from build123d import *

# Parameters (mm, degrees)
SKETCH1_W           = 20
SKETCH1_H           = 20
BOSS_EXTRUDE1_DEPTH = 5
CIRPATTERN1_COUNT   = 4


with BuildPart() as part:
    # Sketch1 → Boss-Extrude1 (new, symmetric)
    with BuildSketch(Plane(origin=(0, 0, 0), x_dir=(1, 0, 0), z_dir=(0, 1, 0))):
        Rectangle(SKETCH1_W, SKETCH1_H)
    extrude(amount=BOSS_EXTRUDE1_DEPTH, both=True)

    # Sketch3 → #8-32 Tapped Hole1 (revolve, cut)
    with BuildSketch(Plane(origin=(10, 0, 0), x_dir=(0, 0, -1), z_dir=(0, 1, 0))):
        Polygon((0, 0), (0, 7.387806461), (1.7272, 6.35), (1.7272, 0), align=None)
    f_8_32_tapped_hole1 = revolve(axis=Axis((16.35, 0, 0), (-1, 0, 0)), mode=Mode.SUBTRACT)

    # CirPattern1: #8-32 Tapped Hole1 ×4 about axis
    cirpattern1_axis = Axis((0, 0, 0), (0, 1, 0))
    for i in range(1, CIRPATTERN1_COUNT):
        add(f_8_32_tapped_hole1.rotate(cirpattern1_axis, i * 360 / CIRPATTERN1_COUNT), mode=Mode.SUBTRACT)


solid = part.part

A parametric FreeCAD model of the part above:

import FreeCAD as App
import Part
import Sketcher
from FreeCAD import Vector
Q = App.Units.Quantity

doc = App.newDocument("Part")
params = doc.addObject("Spreadsheet::Sheet", "Params")
for row, (alias, value) in enumerate([
    ("sketch1_width", "20 mm"),
    ("pad1_length", "10 mm"),
    ("sketch2_width", "6.35 mm"),
    ("groove_angle", "360 deg"),
], start=1):
    params.set(f"A{row}", alias)
    params.set(f"B{row}", "=" + value)
    params.setAlias(f"B{row}", alias)

body = doc.addObject("PartDesign::Body", "Body")

# Sketch on XZ plane
sketch1 = body.newObject("Sketcher::SketchObject", "Sketch")
sketch1.AttachmentSupport = (doc.getObject("XZ_Plane"), [""])
sketch1.MapMode = "FlatFace"
sketch1.addGeometry([
    Part.LineSegment(Vector(-10, -10, 0), Vector(-10, 10, 0)),
    Part.LineSegment(Vector(-10, 10, 0), Vector(10, 10, 0)),
    Part.LineSegment(Vector(10, 10, 0), Vector(10, -10, 0)),
    Part.LineSegment(Vector(10, -10, 0), Vector(-10, -10, 0)),
], False)
sketch1.addConstraint([
    Sketcher.Constraint("Coincident", 0, 2, 1, 1),
    Sketcher.Constraint("Coincident", 1, 2, 2, 1),
    Sketcher.Constraint("Coincident", 2, 2, 3, 1),
    Sketcher.Constraint("Coincident", 3, 2, 0, 1),
    Sketcher.Constraint("Vertical", 0),
    Sketcher.Constraint("Horizontal", 1),
    Sketcher.Constraint("Vertical", 2),
    Sketcher.Constraint("Horizontal", 3),
    Sketcher.Constraint("Symmetric", 0, 2, 2, 2, -1, 1),
    Sketcher.Constraint("Equal", 3, 0),
    Sketcher.Constraint("DistanceX", 1, 1, 1, 2, 20.0),
])
sketch1.setExpression("Constraints[10]", "Params.sketch1_width")
pad1 = body.newObject("PartDesign::Pad", "Pad")
pad1.Profile = sketch1
pad1.setExpression("Length", "Params.pad1_length")
pad1.Midplane = True

# Sketch on XZ plane
sketch2 = body.newObject("Sketcher::SketchObject", "Sketch001")
sketch2.AttachmentSupport = (doc.getObject("XZ_Plane"), [""])
sketch2.MapMode = "FlatFace"
sketch2.addGeometry([
    Part.LineSegment(Vector(2.6, 0, 0), Vector(10, 0, 0)),
    Part.LineSegment(Vector(10, 0, 0), Vector(10, -1.7, 0)),
    Part.LineSegment(Vector(10, -1.7, 0), Vector(3.6, -1.7, 0)),
    Part.LineSegment(Vector(3.6, -1.7, 0), Vector(2.6, 0, 0)),
], False)
sketch2.addConstraint([
    Sketcher.Constraint("Coincident", 0, 2, 1, 1),
    Sketcher.Constraint("Coincident", 1, 2, 2, 1),
    Sketcher.Constraint("Coincident", 2, 2, 3, 1),
    Sketcher.Constraint("Coincident", 3, 2, 0, 1),
    Sketcher.Constraint("Horizontal", 0),
    Sketcher.Constraint("Vertical", 1),
    Sketcher.Constraint("Horizontal", 2),
    Sketcher.Constraint("PointOnObject", 0, 2, -1),
    Sketcher.Constraint("Angle", 3, Q("121 deg")),
    Sketcher.Constraint("DistanceX", -1, 1, 0, 2, 10.0),
    Sketcher.Constraint("DistanceX", 2, 2, 2, 1, 6.35),
    Sketcher.Constraint("DistanceY", 1, 2, 1, 1, 1.7272),
])
sketch2.setExpression("Constraints[10]", "Params.sketch2_width")
groove = body.newObject("PartDesign::Groove", "Groove")
groove.Profile = sketch2
groove.ReferenceAxis = (sketch2, ["H_Axis"])
groove.setExpression("Angle", "Params.groove_angle")
doc.recompute()

polarpattern = body.newObject("PartDesign::PolarPattern", "PolarPattern")
polarpattern.Originals = [groove]
polarpattern.Axis = (doc.getObject("Y_Axis"), [""])
polarpattern.Angle = 360
polarpattern.Occurrences = 4
body.Tip = polarpattern

doc.recompute()
